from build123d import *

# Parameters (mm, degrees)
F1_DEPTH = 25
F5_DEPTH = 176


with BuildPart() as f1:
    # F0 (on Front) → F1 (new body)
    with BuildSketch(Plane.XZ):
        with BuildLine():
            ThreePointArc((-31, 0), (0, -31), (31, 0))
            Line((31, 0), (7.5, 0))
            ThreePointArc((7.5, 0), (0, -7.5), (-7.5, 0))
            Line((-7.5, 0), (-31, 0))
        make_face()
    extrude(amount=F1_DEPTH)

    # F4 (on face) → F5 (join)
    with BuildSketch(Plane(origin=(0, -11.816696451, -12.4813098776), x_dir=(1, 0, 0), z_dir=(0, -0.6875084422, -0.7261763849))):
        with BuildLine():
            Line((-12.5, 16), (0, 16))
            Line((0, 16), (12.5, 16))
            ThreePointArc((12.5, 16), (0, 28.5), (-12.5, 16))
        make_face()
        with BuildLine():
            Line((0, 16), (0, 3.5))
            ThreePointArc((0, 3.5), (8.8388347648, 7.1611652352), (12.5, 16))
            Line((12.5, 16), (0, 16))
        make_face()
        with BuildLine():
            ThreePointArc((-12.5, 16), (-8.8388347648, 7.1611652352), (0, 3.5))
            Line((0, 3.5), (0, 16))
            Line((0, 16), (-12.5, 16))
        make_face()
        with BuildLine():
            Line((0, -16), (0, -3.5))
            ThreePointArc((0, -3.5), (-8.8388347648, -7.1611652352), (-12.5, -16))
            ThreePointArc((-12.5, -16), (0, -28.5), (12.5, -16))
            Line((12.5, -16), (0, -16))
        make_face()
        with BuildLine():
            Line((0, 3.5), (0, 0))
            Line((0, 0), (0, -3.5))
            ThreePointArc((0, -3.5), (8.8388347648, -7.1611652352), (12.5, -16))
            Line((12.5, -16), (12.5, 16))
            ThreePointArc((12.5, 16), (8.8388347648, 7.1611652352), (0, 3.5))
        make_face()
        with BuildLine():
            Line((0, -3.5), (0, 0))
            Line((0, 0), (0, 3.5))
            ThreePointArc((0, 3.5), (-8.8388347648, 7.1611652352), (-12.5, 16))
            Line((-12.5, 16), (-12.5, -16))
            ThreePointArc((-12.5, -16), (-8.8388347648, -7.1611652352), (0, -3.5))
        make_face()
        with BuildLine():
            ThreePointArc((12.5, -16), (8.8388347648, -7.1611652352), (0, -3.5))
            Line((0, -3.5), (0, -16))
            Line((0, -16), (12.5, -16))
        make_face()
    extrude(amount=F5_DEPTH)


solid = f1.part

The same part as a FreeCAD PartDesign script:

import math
import FreeCAD as App
import Part
import Sketcher

V = App.Vector
Q = App.Units.Quantity

doc = App.newDocument("Part")
body = doc.addObject("PartDesign::Body", "Body")

# Sketch on XZ plane
sketch1 = body.newObject("Sketcher::SketchObject", "Sketch")
sketch1.AttachmentSupport = (doc.getObject("XZ_Plane"), [""])
sketch1.MapMode = "FlatFace"
sketch1.addGeometry(Part.ArcOfCircle(Part.Circle(V(0, 0, 0), V(0, 0, 1), 31), math.radians(180), math.radians(360)), False)
sketch1.addGeometry(Part.LineSegment(V(31, 0, 0), V(8, 0, 0)), False)
sketch1.addGeometry(Part.ArcOfCircle(Part.Circle(V(0, 0, 0), V(0, 0, 1), 8), math.radians(180), math.radians(360)), False)
sketch1.addGeometry(Part.LineSegment(V(-8, 0, 0), V(-31, 0, 0)), False)
sketch1.addConstraint(Sketcher.Constraint("Coincident", 0, 2, 1, 1))
sketch1.addConstraint(Sketcher.Constraint("Coincident", 1, 2, 2, 2))
sketch1.addConstraint(Sketcher.Constraint("Coincident", 2, 1, 3, 1))
sketch1.addConstraint(Sketcher.Constraint("Coincident", 3, 2, 0, 1))
sketch1.addConstraint(Sketcher.Constraint("Horizontal", 1))
sketch1.addConstraint(Sketcher.Constraint("Horizontal", 3))
sketch1.addConstraint(Sketcher.Constraint("Coincident", 0, 3, -1, 1))
sketch1.addConstraint(Sketcher.Constraint("Coincident", 2, 3, -1, 1))
sketch1.addConstraint(Sketcher.Constraint("PointOnObject", 0, 2, -1))
sketch1.addConstraint(Sketcher.Constraint("PointOnObject", 2, 1, -1))
sketch1.addConstraint(Sketcher.Constraint("Radius", 0, Q("31 mm")))
sketch1.addConstraint(Sketcher.Constraint("Radius", 2, Q("7.5 mm")))
pad1 = body.newObject("PartDesign::Pad", "Pad")
pad1.Profile = sketch1
pad1.Length = 25

# Sketch on an angled plane
sketch2 = body.newObject("Sketcher::SketchObject", "Sketch001")
sketch2.Placement = App.Placement(V(0, -11.816696, -12.48131), App.Rotation(V(1, 0, 0), V(0, -0.726176385, 0.687508442), V(0, -0.687508442, -0.726176385), "ZXY"))
sketch2.addGeometry(Part.ArcOfCircle(Part.Circle(V(0, -16, 0), V(0, 0, 1), 12), math.radians(180), math.radians(360)), False)
sketch2.addGeometry(Part.LineSegment(V(12, -16, 0), V(12, 16, 0)), False)
sketch2.addGeometry(Part.ArcOfCircle(Part.Circle(V(0, 16, 0), V(0, 0, 1), 12), math.radians(0), math.radians(180)), False)
sketch2.addGeometry(Part.LineSegment(V(-12, 16, 0), V(-12, -16, 0)), False)
sketch2.addConstraint(Sketcher.Constraint("Tangent", 0, 2, 1, 1))
sketch2.addConstraint(Sketcher.Constraint("Tangent", 1, 2, 2, 1))
sketch2.addConstraint(Sketcher.Constraint("Tangent", 2, 2, 3, 1))
sketch2.addConstraint(Sketcher.Constraint("Tangent", 3, 2, 0, 1))
sketch2.addConstraint(Sketcher.Constraint("Vertical", 1))
sketch2.addConstraint(Sketcher.Constraint("Vertical", 3))
sketch2.addConstraint(Sketcher.Constraint("Symmetric", 0, 3, 2, 3, -1, 1))
sketch2.addConstraint(Sketcher.Constraint("Radius", 0, Q("12.5 mm")))
sketch2.addConstraint(Sketcher.Constraint("DistanceY", 1, 1, 1, 2, Q("32 mm")))
pad2 = body.newObject("PartDesign::Pad", "Pad001")
pad2.Profile = sketch2
pad2.Length = 176

doc.recompute()
